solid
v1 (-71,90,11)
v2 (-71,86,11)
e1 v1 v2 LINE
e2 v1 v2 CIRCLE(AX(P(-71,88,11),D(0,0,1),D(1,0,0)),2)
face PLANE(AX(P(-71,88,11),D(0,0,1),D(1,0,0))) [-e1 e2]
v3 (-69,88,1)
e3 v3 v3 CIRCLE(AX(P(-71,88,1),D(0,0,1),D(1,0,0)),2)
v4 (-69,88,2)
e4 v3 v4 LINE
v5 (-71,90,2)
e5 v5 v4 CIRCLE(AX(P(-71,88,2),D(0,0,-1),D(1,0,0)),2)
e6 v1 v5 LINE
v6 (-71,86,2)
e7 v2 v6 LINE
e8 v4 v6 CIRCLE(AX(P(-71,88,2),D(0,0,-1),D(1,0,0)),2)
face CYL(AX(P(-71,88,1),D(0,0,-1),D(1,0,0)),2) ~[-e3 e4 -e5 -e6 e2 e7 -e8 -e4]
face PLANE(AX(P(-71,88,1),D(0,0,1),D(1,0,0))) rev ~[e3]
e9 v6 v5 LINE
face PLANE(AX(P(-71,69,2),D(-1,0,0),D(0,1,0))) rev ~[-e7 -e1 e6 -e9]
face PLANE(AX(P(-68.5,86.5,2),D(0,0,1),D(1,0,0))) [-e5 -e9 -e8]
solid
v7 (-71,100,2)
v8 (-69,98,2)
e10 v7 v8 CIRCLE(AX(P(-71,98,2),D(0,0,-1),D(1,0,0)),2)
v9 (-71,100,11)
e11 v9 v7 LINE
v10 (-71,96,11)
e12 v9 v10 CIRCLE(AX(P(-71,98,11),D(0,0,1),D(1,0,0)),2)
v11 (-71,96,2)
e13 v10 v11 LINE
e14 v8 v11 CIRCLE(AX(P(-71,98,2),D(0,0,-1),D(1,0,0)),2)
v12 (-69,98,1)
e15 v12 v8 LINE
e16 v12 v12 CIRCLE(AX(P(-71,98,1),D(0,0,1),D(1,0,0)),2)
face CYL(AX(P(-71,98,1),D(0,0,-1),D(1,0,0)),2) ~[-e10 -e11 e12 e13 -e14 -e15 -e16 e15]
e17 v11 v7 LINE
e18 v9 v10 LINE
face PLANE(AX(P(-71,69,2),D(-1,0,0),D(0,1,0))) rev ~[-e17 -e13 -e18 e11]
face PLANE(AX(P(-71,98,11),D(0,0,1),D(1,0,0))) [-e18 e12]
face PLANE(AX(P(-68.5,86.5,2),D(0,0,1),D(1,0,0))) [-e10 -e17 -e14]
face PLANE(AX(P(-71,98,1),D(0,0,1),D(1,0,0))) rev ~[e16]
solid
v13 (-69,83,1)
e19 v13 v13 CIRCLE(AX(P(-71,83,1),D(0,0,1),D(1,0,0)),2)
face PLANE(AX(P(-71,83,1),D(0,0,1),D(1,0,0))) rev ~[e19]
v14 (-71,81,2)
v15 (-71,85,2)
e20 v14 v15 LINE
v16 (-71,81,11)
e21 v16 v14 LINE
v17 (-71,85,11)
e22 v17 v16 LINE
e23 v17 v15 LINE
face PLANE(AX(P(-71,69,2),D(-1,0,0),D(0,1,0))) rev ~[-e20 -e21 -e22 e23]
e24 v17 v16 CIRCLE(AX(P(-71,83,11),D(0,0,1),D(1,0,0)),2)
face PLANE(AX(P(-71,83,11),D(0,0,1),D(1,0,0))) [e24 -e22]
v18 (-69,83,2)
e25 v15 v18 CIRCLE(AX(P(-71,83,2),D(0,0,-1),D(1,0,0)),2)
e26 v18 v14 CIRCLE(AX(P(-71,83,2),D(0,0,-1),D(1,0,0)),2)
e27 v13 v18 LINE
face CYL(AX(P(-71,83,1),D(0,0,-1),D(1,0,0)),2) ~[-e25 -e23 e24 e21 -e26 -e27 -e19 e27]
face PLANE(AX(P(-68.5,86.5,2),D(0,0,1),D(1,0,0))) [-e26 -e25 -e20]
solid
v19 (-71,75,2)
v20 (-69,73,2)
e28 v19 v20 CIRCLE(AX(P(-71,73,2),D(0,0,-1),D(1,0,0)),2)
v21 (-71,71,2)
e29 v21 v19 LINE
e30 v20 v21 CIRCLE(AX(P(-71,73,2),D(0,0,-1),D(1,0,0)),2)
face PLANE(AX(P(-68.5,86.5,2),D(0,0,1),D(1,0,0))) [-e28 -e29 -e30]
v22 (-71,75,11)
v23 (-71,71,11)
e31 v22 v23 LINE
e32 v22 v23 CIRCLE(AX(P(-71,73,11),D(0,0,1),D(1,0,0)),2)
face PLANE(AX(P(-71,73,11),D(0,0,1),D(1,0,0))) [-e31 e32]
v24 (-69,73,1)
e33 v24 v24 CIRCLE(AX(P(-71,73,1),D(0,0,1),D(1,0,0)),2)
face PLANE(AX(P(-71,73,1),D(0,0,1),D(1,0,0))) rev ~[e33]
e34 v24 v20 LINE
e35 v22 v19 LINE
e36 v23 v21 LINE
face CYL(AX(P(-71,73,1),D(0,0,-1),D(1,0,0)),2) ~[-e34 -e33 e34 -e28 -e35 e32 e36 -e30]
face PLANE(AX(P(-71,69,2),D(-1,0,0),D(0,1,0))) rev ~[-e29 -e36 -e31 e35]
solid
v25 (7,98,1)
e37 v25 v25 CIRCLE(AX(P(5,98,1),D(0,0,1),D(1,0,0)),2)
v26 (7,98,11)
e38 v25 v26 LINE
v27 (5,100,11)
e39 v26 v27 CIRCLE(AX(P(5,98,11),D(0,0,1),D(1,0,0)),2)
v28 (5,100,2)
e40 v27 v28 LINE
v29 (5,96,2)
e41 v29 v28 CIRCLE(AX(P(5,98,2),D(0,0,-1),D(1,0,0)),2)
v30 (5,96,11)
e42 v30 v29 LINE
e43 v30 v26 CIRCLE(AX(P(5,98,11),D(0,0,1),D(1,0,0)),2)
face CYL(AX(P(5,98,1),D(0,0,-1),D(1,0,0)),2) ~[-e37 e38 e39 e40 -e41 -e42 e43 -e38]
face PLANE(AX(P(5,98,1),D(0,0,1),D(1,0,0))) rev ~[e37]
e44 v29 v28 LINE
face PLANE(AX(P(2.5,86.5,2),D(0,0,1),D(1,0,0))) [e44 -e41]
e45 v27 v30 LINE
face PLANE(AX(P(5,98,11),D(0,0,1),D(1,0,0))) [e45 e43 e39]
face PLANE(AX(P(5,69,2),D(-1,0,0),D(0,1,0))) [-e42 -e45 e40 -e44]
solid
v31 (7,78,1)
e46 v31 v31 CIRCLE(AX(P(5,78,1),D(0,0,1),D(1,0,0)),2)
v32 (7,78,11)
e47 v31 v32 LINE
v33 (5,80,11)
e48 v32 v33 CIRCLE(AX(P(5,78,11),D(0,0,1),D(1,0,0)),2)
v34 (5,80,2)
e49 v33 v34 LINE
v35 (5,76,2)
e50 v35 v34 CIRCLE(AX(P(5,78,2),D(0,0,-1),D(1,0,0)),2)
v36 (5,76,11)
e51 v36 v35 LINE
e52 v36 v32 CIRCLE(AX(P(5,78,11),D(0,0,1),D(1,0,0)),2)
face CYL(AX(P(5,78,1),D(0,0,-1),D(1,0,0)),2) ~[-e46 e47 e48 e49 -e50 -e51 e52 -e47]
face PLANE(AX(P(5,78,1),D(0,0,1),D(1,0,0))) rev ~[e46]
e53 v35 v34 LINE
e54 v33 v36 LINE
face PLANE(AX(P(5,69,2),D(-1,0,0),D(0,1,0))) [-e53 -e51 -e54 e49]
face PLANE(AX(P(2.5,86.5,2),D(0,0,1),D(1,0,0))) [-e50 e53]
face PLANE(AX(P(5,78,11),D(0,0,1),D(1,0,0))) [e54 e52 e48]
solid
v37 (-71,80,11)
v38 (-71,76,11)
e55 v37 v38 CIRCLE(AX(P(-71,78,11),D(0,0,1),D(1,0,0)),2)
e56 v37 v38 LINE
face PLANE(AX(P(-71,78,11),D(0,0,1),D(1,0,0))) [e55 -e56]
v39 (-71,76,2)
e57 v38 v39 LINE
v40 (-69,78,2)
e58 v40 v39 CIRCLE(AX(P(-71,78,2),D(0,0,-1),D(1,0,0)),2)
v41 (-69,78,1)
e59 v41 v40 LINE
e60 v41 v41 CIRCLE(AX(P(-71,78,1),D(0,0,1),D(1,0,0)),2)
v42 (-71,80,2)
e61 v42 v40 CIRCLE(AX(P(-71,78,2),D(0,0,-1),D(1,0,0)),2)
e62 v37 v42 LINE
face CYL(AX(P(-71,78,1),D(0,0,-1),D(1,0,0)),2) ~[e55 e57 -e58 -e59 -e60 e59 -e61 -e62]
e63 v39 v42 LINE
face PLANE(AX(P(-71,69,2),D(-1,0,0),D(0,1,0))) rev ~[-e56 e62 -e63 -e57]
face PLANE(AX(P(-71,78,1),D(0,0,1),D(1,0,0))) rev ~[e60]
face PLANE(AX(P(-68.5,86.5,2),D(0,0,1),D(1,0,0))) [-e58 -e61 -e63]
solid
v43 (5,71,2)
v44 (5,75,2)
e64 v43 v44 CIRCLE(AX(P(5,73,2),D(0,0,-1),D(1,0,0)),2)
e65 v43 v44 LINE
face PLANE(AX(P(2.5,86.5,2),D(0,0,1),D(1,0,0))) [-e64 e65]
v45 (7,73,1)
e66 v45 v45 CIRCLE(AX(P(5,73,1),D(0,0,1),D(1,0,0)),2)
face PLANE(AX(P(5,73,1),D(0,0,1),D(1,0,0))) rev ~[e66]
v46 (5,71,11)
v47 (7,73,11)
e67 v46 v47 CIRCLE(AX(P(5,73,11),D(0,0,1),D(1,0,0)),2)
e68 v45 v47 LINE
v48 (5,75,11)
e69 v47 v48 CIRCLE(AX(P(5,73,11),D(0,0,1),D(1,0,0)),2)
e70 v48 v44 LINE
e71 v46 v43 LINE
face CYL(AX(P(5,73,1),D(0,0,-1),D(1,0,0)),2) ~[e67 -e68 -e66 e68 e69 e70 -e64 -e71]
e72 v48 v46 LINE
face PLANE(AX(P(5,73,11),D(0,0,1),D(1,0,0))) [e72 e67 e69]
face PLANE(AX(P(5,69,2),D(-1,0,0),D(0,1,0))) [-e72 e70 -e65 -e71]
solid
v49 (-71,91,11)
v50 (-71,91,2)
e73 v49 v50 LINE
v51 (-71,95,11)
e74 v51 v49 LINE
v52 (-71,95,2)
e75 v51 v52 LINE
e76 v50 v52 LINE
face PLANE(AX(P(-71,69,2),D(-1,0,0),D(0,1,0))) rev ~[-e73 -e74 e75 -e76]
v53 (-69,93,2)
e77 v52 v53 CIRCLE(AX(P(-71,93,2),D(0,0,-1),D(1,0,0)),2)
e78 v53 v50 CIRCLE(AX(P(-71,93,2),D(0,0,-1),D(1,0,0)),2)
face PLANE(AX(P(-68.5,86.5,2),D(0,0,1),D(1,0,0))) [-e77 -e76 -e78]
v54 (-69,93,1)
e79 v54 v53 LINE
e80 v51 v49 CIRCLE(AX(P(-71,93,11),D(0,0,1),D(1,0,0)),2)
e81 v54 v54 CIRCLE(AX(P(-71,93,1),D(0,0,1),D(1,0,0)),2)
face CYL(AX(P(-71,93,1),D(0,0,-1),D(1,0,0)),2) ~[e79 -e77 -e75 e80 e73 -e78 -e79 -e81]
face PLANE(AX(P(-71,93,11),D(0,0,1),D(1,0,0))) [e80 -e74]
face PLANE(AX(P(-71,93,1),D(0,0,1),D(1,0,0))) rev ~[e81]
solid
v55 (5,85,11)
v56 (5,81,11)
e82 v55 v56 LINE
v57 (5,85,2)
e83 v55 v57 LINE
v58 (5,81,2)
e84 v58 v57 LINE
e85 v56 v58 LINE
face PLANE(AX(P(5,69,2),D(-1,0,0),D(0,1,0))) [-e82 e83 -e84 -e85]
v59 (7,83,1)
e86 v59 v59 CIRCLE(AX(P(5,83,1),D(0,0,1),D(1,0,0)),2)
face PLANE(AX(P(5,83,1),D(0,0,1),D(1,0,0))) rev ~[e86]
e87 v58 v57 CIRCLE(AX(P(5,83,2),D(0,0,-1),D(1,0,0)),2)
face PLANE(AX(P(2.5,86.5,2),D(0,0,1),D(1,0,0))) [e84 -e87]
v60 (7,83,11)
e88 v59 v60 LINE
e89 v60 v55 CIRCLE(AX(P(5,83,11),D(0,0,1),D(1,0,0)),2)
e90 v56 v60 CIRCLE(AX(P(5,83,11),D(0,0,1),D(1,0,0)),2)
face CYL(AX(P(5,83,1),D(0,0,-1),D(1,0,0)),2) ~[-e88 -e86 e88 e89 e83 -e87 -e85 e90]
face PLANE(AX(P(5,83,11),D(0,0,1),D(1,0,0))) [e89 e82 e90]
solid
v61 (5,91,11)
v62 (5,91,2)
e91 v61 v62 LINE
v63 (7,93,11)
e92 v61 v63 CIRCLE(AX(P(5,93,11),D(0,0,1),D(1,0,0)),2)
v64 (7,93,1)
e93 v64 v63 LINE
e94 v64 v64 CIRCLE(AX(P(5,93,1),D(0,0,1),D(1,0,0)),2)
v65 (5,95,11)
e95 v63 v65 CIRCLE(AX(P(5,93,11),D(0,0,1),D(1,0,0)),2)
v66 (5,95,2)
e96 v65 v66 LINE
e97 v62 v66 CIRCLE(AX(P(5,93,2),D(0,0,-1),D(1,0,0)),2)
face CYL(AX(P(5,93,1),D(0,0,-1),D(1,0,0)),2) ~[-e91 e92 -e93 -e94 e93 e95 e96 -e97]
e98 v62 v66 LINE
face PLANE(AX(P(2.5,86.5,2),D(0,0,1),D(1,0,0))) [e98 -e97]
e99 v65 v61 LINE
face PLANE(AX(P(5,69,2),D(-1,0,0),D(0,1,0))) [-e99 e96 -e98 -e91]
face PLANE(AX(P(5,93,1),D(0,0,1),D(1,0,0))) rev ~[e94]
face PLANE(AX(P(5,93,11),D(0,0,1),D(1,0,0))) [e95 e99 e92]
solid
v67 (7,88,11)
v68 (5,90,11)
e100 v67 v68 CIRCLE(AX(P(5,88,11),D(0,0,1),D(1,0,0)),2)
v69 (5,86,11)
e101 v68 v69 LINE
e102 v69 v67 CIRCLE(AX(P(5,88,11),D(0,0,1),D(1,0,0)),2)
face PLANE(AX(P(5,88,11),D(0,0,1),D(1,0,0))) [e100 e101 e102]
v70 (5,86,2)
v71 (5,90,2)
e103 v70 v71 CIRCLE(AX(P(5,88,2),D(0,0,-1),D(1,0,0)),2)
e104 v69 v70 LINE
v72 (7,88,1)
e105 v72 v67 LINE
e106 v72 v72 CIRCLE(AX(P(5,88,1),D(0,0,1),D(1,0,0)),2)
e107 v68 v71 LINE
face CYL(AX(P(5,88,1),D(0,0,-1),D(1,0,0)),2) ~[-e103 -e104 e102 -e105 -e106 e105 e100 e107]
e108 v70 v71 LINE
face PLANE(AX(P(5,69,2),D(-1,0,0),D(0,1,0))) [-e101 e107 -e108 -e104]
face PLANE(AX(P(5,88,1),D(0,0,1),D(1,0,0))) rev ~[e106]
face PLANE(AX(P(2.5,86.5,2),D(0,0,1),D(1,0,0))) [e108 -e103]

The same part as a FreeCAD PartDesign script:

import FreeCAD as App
import Part
import Sketcher

V = App.Vector
Q = App.Units.Quantity

doc = App.newDocument("Part")
body = doc.addObject("PartDesign::Body", "Body")

# Sketch on XY plane
sketch1 = body.newObject("Sketcher::SketchObject", "Sketch")
sketch1.AttachmentSupport = (doc.getObject("XY_Plane"), [""])
sketch1.MapMode = "FlatFace"
sketch1.AttachmentOffset = App.Placement(V(0, 0, 2), App.Rotation())
sketch1.addGeometry(Part.LineSegment(V(-71, 104, 0), V(-71, 69, 0)), False)
sketch1.addGeometry(Part.LineSegment(V(-71, 69, 0), V(-66, 69, 0)), False)
sketch1.addGeometry(Part.LineSegment(V(-66, 69, 0), V(-66, 104, 0)), False)
sketch1.addGeometry(Part.LineSegment(V(-66, 104, 0), V(-71, 104, 0)), False)
sketch1.addConstraint(Sketcher.Constraint("Coincident", 0, 2, 1, 1))
sketch1.addConstraint(Sketcher.Constraint("Coincident", 1, 2, 2, 1))
sketch1.addConstraint(Sketcher.Constraint("Coincident", 2, 2, 3, 1))
sketch1.addConstraint(Sketcher.Constraint("Coincident", 3, 2, 0, 1))
sketch1.addConstraint(Sketcher.Constraint("Vertical", 0))
sketch1.addConstraint(Sketcher.Constraint("Horizontal", 1))
sketch1.addConstraint(Sketcher.Constraint("Vertical", 2))
sketch1.addConstraint(Sketcher.Constraint("Horizontal", 3))
sketch1.addConstraint(Sketcher.Constraint("DistanceX", 1, 1, 1, 2, Q("5 mm")))
sketch1.addConstraint(Sketcher.Constraint("DistanceY", 0, 2, 0, 1, Q("35 mm")))
sketch1.addConstraint(Sketcher.Constraint("DistanceX", 0, 2, -1, 1, Q("71 mm")))
sketch1.addConstraint(Sketcher.Constraint("DistanceY", -1, 1, 0, 2, Q("69 mm")))
pad1 = body.newObject("PartDesign::Pad", "Pad")
pad1.Profile = sketch1
pad1.Length = 12
body2 = doc.addObject("PartDesign::Body", "Body001")

# Sketch on XY plane
sketch2 = body2.newObject("Sketcher::SketchObject", "Sketch001")
sketch2.AttachmentSupport = (doc.getObject("XY_Plane001"), [""])
sketch2.MapMode = "FlatFace"
sketch2.AttachmentOffset = App.Placement(V(0, 0, 2), App.Rotation())
sketch2.addGeometry(Part.LineSegment(V(0, 104, 0), V(0, 69, 0)), False)
sketch2.addGeometry(Part.LineSegment(V(0, 69, 0), V(5, 69, 0)), False)
sketch2.addGeometry(Part.LineSegment(V(5, 69, 0), V(5, 104, 0)), False)
sketch2.addGeometry(Part.LineSegment(V(5, 104, 0), V(0, 104, 0)), False)
sketch2.addConstraint(Sketcher.Constraint("Coincident", 0, 2, 1, 1))
sketch2.addConstraint(Sketcher.Constraint("Coincident", 1, 2, 2, 1))
sketch2.addConstraint(Sketcher.Constraint("Coincident", 2, 2, 3, 1))
sketch2.addConstraint(Sketcher.Constraint("Coincident", 3, 2, 0, 1))
sketch2.addConstraint(Sketcher.Constraint("Vertical", 0))
sketch2.addConstraint(Sketcher.Constraint("Horizontal", 1))
sketch2.addConstraint(Sketcher.Constraint("Vertical", 2))
sketch2.addConstraint(Sketcher.Constraint("Horizontal", 3))
sketch2.addConstraint(Sketcher.Constraint("PointOnObject", 0, 2, -2))
sketch2.addConstraint(Sketcher.Constraint("DistanceX", 1, 1, 1, 2, Q("5 mm")))
sketch2.addConstraint(Sketcher.Constraint("DistanceY", 0, 2, 0, 1, Q("35 mm")))
sketch2.addConstraint(Sketcher.Constraint("DistanceY", -1, 1, 0, 2, Q("69 mm")))
pad2 = body2.newObject("PartDesign::Pad", "Pad001")
pad2.Profile = sketch2
pad2.Length = 12
body3 = doc.addObject("PartDesign::Body", "Body002")

# Sketch on XY plane
sketch3 = body3.newObject("Sketcher::SketchObject", "Sketch002")
sketch3.AttachmentSupport = (doc.getObject("XY_Plane002"), [""])
sketch3.MapMode = "FlatFace"
sketch3.AttachmentOffset = App.Placement(V(0, 0, 1), App.Rotation())
sketch3.addGeometry(Part.Circle(V(5, 73, 0), V(0, 0, 1), 2), False)
sketch3.addConstraint(Sketcher.Constraint("Diameter", 0, Q("4 mm")))
sketch3.addConstraint(Sketcher.Constraint("DistanceX", -1, 1, 0, 3, Q("5 mm")))
sketch3.addConstraint(Sketcher.Constraint("DistanceY", -1, 1, 0, 3, Q("73 mm")))
pad3 = body3.newObject("PartDesign::Pad", "Pad002")
pad3.Profile = sketch3
pad3.Length = 10
body4 = doc.addObject("PartDesign::Body", "Body003")

# Sketch on XY plane
sketch4 = body4.newObject("Sketcher::SketchObject", "Sketch003")
sketch4.AttachmentSupport = (doc.getObject("XY_Plane003"), [""])
sketch4.MapMode = "FlatFace"
sketch4.AttachmentOffset = App.Placement(V(0, 0, 1), App.Rotation())
sketch4.addGeometry(Part.Circle(V(5, 83, 0), V(0, 0, 1), 2), False)
sketch4.addConstraint(Sketcher.Constraint("Diameter", 0, Q("4 mm")))
sketch4.addConstraint(Sketcher.Constraint("DistanceX", -1, 1, 0, 3, Q("5 mm")))
sketch4.addConstraint(Sketcher.Constraint("DistanceY", -1, 1, 0, 3, Q("83 mm")))
pad4 = body4.newObject("PartDesign::Pad", "Pad003")
pad4.Profile = sketch4
pad4.Length = 10
body5 = doc.addObject("PartDesign::Body", "Body004")

# Sketch on XY plane
sketch5 = body5.newObject("Sketcher::SketchObject", "Sketch004")
sketch5.AttachmentSupport = (doc.getObject("XY_Plane004"), [""])
sketch5.MapMode = "FlatFace"
sketch5.AttachmentOffset = App.Placement(V(0, 0, 1), App.Rotation())
sketch5.addGeometry(Part.Circle(V(5, 88, 0), V(0, 0, 1), 2), False)
sketch5.addConstraint(Sketcher.Constraint("Diameter", 0, Q("4 mm")))
sketch5.addConstraint(Sketcher.Constraint("DistanceX", -1, 1, 0, 3, Q("5 mm")))
sketch5.addConstraint(Sketcher.Constraint("DistanceY", -1, 1, 0, 3, Q("88 mm")))
pad5 = body5.newObject("PartDesign::Pad", "Pad004")
pad5.Profile = sketch5
pad5.Length = 10
body6 = doc.addObject("PartDesign::Body", "Body005")

# Sketch on XY plane
sketch6 = body6.newObject("Sketcher::SketchObject", "Sketch005")
sketch6.AttachmentSupport = (doc.getObject("XY_Plane005"), [""])
sketch6.MapMode = "FlatFace"
sketch6.AttachmentOffset = App.Placement(V(0, 0, 1), App.Rotation())
sketch6.addGeometry(Part.Circle(V(5, 93, 0), V(0, 0, 1), 2), False)
sketch6.addConstraint(Sketcher.Constraint("Diameter", 0, Q("4 mm")))
sketch6.addConstraint(Sketcher.Constraint("DistanceX", -1, 1, 0, 3, Q("5 mm")))
sketch6.addConstraint(Sketcher.Constraint("DistanceY", -1, 1, 0, 3, Q("93 mm")))
pad6 = body6.newObject("PartDesign::Pad", "Pad005")
pad6.Profile = sketch6
pad6.Length = 10
body7 = doc.addObject("PartDesign::Body", "Body006")

# Sketch on XY plane
sketch7 = body7.newObject("Sketcher::SketchObject", "Sketch006")
sketch7.AttachmentSupport = (doc.getObject("XY_Plane006"), [""])
sketch7.MapMode = "FlatFace"
sketch7.AttachmentOffset = App.Placement(V(0, 0, 1), App.Rotation())
sketch7.addGeometry(Part.Circle(V(5, 98, 0), V(0, 0, 1), 2), False)
sketch7.addConstraint(Sketcher.Constraint("Diameter", 0, Q("4 mm")))
sketch7.addConstraint(Sketcher.Constraint("DistanceX", -1, 1, 0, 3, Q("5 mm")))
sketch7.addConstraint(Sketcher.Constraint("DistanceY", -1, 1, 0, 3, Q("98 mm")))
pad7 = body7.newObject("PartDesign::Pad", "Pad006")
pad7.Profile = sketch7
pad7.Length = 10
body8 = doc.addObject("PartDesign::Body", "Body007")
body8.AllowCompound = True

# Sketch on XY plane
sketch8 = body8.newObject("Sketcher::SketchObject", "Sketch007")
sketch8.AttachmentSupport = (doc.getObject("XY_Plane007"), [""])
sketch8.MapMode = "FlatFace"
sketch8.AttachmentOffset = App.Placement(V(0, 0, 1), App.Rotation())
sketch8.addGeometry(Part.Circle(V(5, 78, 0), V(0, 0, 1), 2), False)
sketch8.addConstraint(Sketcher.Constraint("Diameter", 0, Q("4 mm")))
sketch8.addConstraint(Sketcher.Constraint("DistanceX", -1, 1, 0, 3, Q("5 mm")))
sketch8.addConstraint(Sketcher.Constraint("DistanceY", -1, 1, 0, 3, Q("78 mm")))
pad8 = body8.newObject("PartDesign::Pad", "Pad007")
pad8.Profile = sketch8
pad8.Length = 10
doc.recompute()

boolean = body8.newObject("PartDesign::Boolean", "Boolean")
boolean.Type = "Fuse"
boolean.addObjects([body3])
doc.recompute()

boolean2 = body8.newObject("PartDesign::Boolean", "Boolean001")
boolean2.Type = "Fuse"
boolean2.addObjects([body4])
doc.recompute()

boolean3 = body8.newObject("PartDesign::Boolean", "Boolean002")
boolean3.Type = "Fuse"
boolean3.addObjects([body5])
doc.recompute()

boolean4 = body8.newObject("PartDesign::Boolean", "Boolean003")
boolean4.Type = "Fuse"
boolean4.addObjects([body6])
doc.recompute()

boolean5 = body8.newObject("PartDesign::Boolean", "Boolean004")
boolean5.Type = "Fuse"
boolean5.addObjects([body7])
body9 = doc.addObject("PartDesign::Body", "Body008")
body9.AllowCompound = True
doc.recompute()

body8.Placement = App.Placement(V(-76, 0, 0), App.Rotation(V(0, 0, 1), 0))
boolean6 = body9.newObject("PartDesign::Boolean", "Boolean005")
boolean6.Type = "Fuse"
boolean6.addObjects([body8])
body10 = doc.addObject("PartDesign::Body", "Body009")

# Sketch on XY plane
sketch9 = body10.newObject("Sketcher::SketchObject", "Sketch008")
sketch9.AttachmentSupport = (doc.getObject("XY_Plane009"), [""])
sketch9.MapMode = "FlatFace"
sketch9.AttachmentOffset = App.Placement(V(0, 0, 1), App.Rotation())
sketch9.addGeometry(Part.Circle(V(5, 73, 0), V(0, 0, 1), 2), False)
sketch9.addConstraint(Sketcher.Constraint("Diameter", 0, Q("4 mm")))
sketch9.addConstraint(Sketcher.Constraint("DistanceX", -1, 1, 0, 3, Q("5 mm")))
sketch9.addConstraint(Sketcher.Constraint("DistanceY", -1, 1, 0, 3, Q("73 mm")))
pad9 = body10.newObject("PartDesign::Pad", "Pad008")
pad9.Profile = sketch9
pad9.Length = 10
body11 = doc.addObject("PartDesign::Body", "Body010")

# Sketch on XY plane
sketch10 = body11.newObject("Sketcher::SketchObject", "Sketch009")
sketch10.AttachmentSupport = (doc.getObject("XY_Plane010"), [""])
sketch10.MapMode = "FlatFace"
sketch10.AttachmentOffset = App.Placement(V(0, 0, 1), App.Rotation())
sketch10.addGeometry(Part.Circle(V(5, 83, 0), V(0, 0, 1), 2), False)
sketch10.addConstraint(Sketcher.Constraint("Diameter", 0, Q("4 mm")))
sketch10.addConstraint(Sketcher.Constraint("DistanceX", -1, 1, 0, 3, Q("5 mm")))
sketch10.addConstraint(Sketcher.Constraint("DistanceY", -1, 1, 0, 3, Q("83 mm")))
pad10 = body11.newObject("PartDesign::Pad", "Pad009")
pad10.Profile = sketch10
pad10.Length = 10
body12 = doc.addObject("PartDesign::Body", "Body011")

# Sketch on XY plane
sketch11 = body12.newObject("Sketcher::SketchObject", "Sketch010")
sketch11.AttachmentSupport = (doc.getObject("XY_Plane011"), [""])
sketch11.MapMode = "FlatFace"
sketch11.AttachmentOffset = App.Placement(V(0, 0, 1), App.Rotation())
sketch11.addGeometry(Part.Circle(V(5, 88, 0), V(0, 0, 1), 2), False)
sketch11.addConstraint(Sketcher.Constraint("Diameter", 0, Q("4 mm")))
sketch11.addConstraint(Sketcher.Constraint("DistanceX", -1, 1, 0, 3, Q("5 mm")))
sketch11.addConstraint(Sketcher.Constraint("DistanceY", -1, 1, 0, 3, Q("88 mm")))
pad11 = body12.newObject("PartDesign::Pad", "Pad010")
pad11.Profile = sketch11
pad11.Length = 10
body13 = doc.addObject("PartDesign::Body", "Body012")

# Sketch on XY plane
sketch12 = body13.newObject("Sketcher::SketchObject", "Sketch011")
sketch12.AttachmentSupport = (doc.getObject("XY_Plane012"), [""])
sketch12.MapMode = "FlatFace"
sketch12.AttachmentOffset = App.Placement(V(0, 0, 1), App.Rotation())
sketch12.addGeometry(Part.Circle(V(5, 93, 0), V(0, 0, 1), 2), False)
sketch12.addConstraint(Sketcher.Constraint("Diameter", 0, Q("4 mm")))
sketch12.addConstraint(Sketcher.Constraint("DistanceX", -1, 1, 0, 3, Q("5 mm")))
sketch12.addConstraint(Sketcher.Constraint("DistanceY", -1, 1, 0, 3, Q("93 mm")))
pad12 = body13.newObject("PartDesign::Pad", "Pad011")
pad12.Profile = sketch12
pad12.Length = 10
body14 = doc.addObject("PartDesign::Body", "Body013")

# Sketch on XY plane
sketch13 = body14.newObject("Sketcher::SketchObject", "Sketch012")
sketch13.AttachmentSupport = (doc.getObject("XY_Plane013"), [""])
sketch13.MapMode = "FlatFace"
sketch13.AttachmentOffset = App.Placement(V(0, 0, 1), App.Rotation())
sketch13.addGeometry(Part.Circle(V(5, 98, 0), V(0, 0, 1), 2), False)
sketch13.addConstraint(Sketcher.Constraint("Diameter", 0, Q("4 mm")))
sketch13.addConstraint(Sketcher.Constraint("DistanceX", -1, 1, 0, 3, Q("5 mm")))
sketch13.addConstraint(Sketcher.Constraint("DistanceY", -1, 1, 0, 3, Q("98 mm")))
pad13 = body14.newObject("PartDesign::Pad", "Pad012")
pad13.Profile = sketch13
pad13.Length = 10
body15 = doc.addObject("PartDesign::Body", "Body014")
body15.AllowCompound = True

# Sketch on XY plane
sketch14 = body15.newObject("Sketcher::SketchObject", "Sketch013")
sketch14.AttachmentSupport = (doc.getObject("XY_Plane014"), [""])
sketch14.MapMode = "FlatFace"
sketch14.AttachmentOffset = App.Placement(V(0, 0, 1), App.Rotation())
sketch14.addGeometry(Part.Circle(V(5, 78, 0), V(0, 0, 1), 2), False)
sketch14.addConstraint(Sketcher.Constraint("Diameter", 0, Q("4 mm")))
sketch14.addConstraint(Sketcher.Constraint("DistanceX", -1, 1, 0, 3, Q("5 mm")))
sketch14.addConstraint(Sketcher.Constraint("DistanceY", -1, 1, 0, 3, Q("78 mm")))
pad14 = body15.newObject("PartDesign::Pad", "Pad013")
pad14.Profile = sketch14
pad14.Length = 10
doc.recompute()

boolean7 = body15.newObject("PartDesign::Boolean", "Boolean006")
boolean7.Type = "Fuse"
boolean7.addObjects([body10])
doc.recompute()

boolean8 = body15.newObject("PartDesign::Boolean", "Boolean007")
boolean8.Type = "Fuse"
boolean8.addObjects([body11])
doc.recompute()

boolean9 = body15.newObject("PartDesign::Boolean", "Boolean008")
boolean9.Type = "Fuse"
boolean9.addObjects([body12])
doc.recompute()

boolean10 = body15.newObject("PartDesign::Boolean", "Boolean009")
boolean10.Type = "Fuse"
boolean10.addObjects([body13])
doc.recompute()

boolean11 = body15.newObject("PartDesign::Boolean", "Boolean010")
boolean11.Type = "Fuse"
boolean11.addObjects([body14])
doc.recompute()

boolean12 = body15.newObject("PartDesign::Boolean", "Boolean011")
boolean12.Type = "Fuse"
boolean12.addObjects([body9])
doc.recompute()

boolean13 = body15.newObject("PartDesign::Boolean", "Boolean012")
boolean13.Type = "Cut"
boolean13.addObjects([body2])
doc.recompute()

boolean14 = body15.newObject("PartDesign::Boolean", "Boolean013")
boolean14.Type = "Cut"
boolean14.addObjects([body])

doc.recompute()
